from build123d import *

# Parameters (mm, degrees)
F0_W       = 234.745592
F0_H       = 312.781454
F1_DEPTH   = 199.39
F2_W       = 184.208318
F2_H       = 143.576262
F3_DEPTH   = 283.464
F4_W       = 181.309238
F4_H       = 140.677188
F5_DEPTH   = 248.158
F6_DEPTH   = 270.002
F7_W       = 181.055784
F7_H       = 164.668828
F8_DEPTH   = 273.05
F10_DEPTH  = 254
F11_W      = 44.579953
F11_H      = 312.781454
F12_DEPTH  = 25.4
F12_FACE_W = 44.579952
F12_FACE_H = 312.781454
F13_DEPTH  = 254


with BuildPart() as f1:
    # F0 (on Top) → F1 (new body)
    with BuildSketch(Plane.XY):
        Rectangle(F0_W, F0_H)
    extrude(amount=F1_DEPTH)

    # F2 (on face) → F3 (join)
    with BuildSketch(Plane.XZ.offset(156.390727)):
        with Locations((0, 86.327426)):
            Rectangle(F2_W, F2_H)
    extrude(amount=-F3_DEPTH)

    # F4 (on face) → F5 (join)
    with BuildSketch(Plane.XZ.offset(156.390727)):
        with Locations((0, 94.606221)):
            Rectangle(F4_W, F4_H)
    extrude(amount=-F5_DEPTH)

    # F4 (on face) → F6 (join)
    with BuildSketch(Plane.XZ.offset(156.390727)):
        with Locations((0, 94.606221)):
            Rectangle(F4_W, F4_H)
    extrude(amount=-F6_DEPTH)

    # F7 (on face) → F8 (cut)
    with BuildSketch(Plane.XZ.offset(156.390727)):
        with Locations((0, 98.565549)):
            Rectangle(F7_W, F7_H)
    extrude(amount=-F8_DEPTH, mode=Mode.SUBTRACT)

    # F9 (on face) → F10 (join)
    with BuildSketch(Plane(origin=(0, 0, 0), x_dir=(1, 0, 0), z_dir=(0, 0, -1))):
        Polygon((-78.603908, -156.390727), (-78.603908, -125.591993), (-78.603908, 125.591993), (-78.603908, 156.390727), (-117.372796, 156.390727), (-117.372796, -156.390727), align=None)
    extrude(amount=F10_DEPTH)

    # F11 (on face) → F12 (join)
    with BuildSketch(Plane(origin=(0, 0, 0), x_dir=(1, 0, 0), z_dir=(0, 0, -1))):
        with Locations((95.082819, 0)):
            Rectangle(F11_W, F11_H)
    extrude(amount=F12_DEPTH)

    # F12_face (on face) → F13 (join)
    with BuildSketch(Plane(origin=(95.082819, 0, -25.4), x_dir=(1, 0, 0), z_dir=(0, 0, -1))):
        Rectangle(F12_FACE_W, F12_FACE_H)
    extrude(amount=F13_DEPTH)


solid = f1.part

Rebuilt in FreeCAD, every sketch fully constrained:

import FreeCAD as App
import Part
import Sketcher

V = App.Vector
Q = App.Units.Quantity


def add_polygon(sketch, points):
    """Adds a closed chain of lines whose ends are joined by coincident constraints."""
    first, n = sketch.GeometryCount, len(points)
    for a, b in zip(points, points[1:] + points[:1]):
        sketch.addGeometry(Part.LineSegment(App.Vector(*a, 0), App.Vector(*b, 0)), False)
    for i in range(n):
        sketch.addConstraint(Sketcher.Constraint("Coincident", first + i, 2, first + (i + 1) % n, 1))

doc = App.newDocument("Part")
body = doc.addObject("PartDesign::Body", "Body")

# Sketch on XY plane
sketch1 = body.newObject("Sketcher::SketchObject", "Sketch")
sketch1.AttachmentSupport = (doc.getObject("XY_Plane"), [""])
sketch1.MapMode = "FlatFace"
add_polygon(sketch1, [(-117.372796, 156.390727), (-117.372796, -156.390727), (117.372796, -156.390727), (117.372796, 156.390727)])  # lines 0-3
sketch1.addConstraint([
    Sketcher.Constraint("Vertical", 0),
    Sketcher.Constraint("Horizontal", 1),
    Sketcher.Constraint("Vertical", 2),
    Sketcher.Constraint("Horizontal", 3),
    Sketcher.Constraint("Symmetric", 0, 2, 2, 2, -1, 1),
    Sketcher.Constraint("DistanceX", 1, 1, 1, 2, 234.745592),
    Sketcher.Constraint("DistanceY", 0, 2, 0, 1, 312.781454),
])
pad1 = body.newObject("PartDesign::Pad", "Pad")
pad1.Profile = sketch1
pad1.Length = Q("7.85 in")

# Sketch on XZ plane
sketch2 = body.newObject("Sketcher::SketchObject", "Sketch001")
sketch2.AttachmentSupport = (doc.getObject("XZ_Plane"), [""])
sketch2.MapMode = "FlatFace"
sketch2.AttachmentOffset = App.Placement(V(0, 0, 156.390727), App.Rotation())
add_polygon(sketch2, [(-92.104159, 158.115557), (-92.104159, 14.539295), (92.104159, 14.539295), (92.104159, 158.115557)])  # lines 0-3
sketch2.addConstraint([
    Sketcher.Constraint("Vertical", 0),
    Sketcher.Constraint("Horizontal", 1),
    Sketcher.Constraint("Vertical", 2),
    Sketcher.Constraint("Horizontal", 3),
    Sketcher.Constraint("DistanceX", 1, 1, 1, 2, 184.208318),
    Sketcher.Constraint("DistanceY", 0, 2, 0, 1, 143.576262),
    Sketcher.Constraint("DistanceX", 0, 2, -1, 1, 92.104159),
    Sketcher.Constraint("DistanceY", -1, 1, 0, 2, 14.539295),
])
pad2 = body.newObject("PartDesign::Pad", "Pad001")
pad2.Profile = sketch2
pad2.Length = Q("11.16 in")
pad2.Reversed = True

# Sketch on XZ plane
sketch3 = body.newObject("Sketcher::SketchObject", "Sketch002")
sketch3.AttachmentSupport = (doc.getObject("XZ_Plane"), [""])
sketch3.MapMode = "FlatFace"
sketch3.AttachmentOffset = App.Placement(V(0, 0, 156.390727), App.Rotation())
add_polygon(sketch3, [(-90.654619, 164.944815), (-90.654619, 24.267627), (90.654619, 24.267627), (90.654619, 164.944815)])  # lines 0-3
sketch3.addConstraint([
    Sketcher.Constraint("Vertical", 0),
    Sketcher.Constraint("Horizontal", 1),
    Sketcher.Constraint("Vertical", 2),
    Sketcher.Constraint("Horizontal", 3),
    Sketcher.Constraint("DistanceX", 1, 1, 1, 2, 181.309238),
    Sketcher.Constraint("DistanceY", 0, 2, 0, 1, 140.677188),
    Sketcher.Constraint("DistanceX", 0, 2, -1, 1, 90.654619),
    Sketcher.Constraint("DistanceY", -1, 1, 0, 2, 24.267627),
])
pad3 = body.newObject("PartDesign::Pad", "Pad002")
pad3.Profile = sketch3
pad3.Length = Q("9.77 in")
pad3.Reversed = True

# Sketch on XZ plane
sketch4 = body.newObject("Sketcher::SketchObject", "Sketch003")
sketch4.AttachmentSupport = (doc.getObject("XZ_Plane"), [""])
sketch4.MapMode = "FlatFace"
sketch4.AttachmentOffset = App.Placement(V(0, 0, 156.390727), App.Rotation())
add_polygon(sketch4, [(-90.654619, 164.944815), (-90.654619, 24.267627), (90.654619, 24.267627), (90.654619, 164.944815)])  # lines 0-3
sketch4.addConstraint([
    Sketcher.Constraint("Vertical", 0),
    Sketcher.Constraint("Horizontal", 1),
    Sketcher.Constraint("Vertical", 2),
    Sketcher.Constraint("Horizontal", 3),
    Sketcher.Constraint("DistanceX", 1, 1, 1, 2, 181.309238),
    Sketcher.Constraint("DistanceY", 0, 2, 0, 1, 140.677188),
    Sketcher.Constraint("DistanceX", 0, 2, -1, 1, 90.654619),
    Sketcher.Constraint("DistanceY", -1, 1, 0, 2, 24.267627),
])
pad4 = body.newObject("PartDesign::Pad", "Pad003")
pad4.Profile = sketch4
pad4.Length = Q("10.63 in")
pad4.Reversed = True

# Sketch on XZ plane
sketch5 = body.newObject("Sketcher::SketchObject", "Sketch004")
sketch5.AttachmentSupport = (doc.getObject("XZ_Plane"), [""])
sketch5.MapMode = "FlatFace"
sketch5.AttachmentOffset = App.Placement(V(0, 0, 156.390727), App.Rotation())
add_polygon(sketch5, [(-90.527892, 180.899963), (-90.527892, 16.231135), (90.527892, 16.231135), (90.527892, 180.899963)])  # lines 0-3
sketch5.addConstraint([
    Sketcher.Constraint("Vertical", 0),
    Sketcher.Constraint("Horizontal", 1),
    Sketcher.Constraint("Vertical", 2),
    Sketcher.Constraint("Horizontal", 3),
    Sketcher.Constraint("DistanceY", 0, 2, 0, 1, 164.668828),
    Sketcher.Constraint("DistanceX", 1, 1, 1, 2, 181.055784),
    Sketcher.Constraint("DistanceX", 0, 2, -1, 1, 90.527892),
    Sketcher.Constraint("DistanceY", -1, 1, 0, 2, 16.231135),
])
pocket1 = body.newObject("PartDesign::Pocket", "Pocket")
pocket1.Profile = sketch5
pocket1.Length = Q("10.75 in")

# Sketch on XY plane
sketch6 = body.newObject("Sketcher::SketchObject", "Sketch005")
sketch6.AttachmentSupport = (doc.getObject("XY_Plane"), [""])
sketch6.MapMode = "FlatFace"
add_polygon(sketch6, [(-78.603908, 156.390727), (-78.603908, -156.390727), (-117.372796, -156.390727), (-117.372796, 156.390727)])  # lines 0-3
sketch6.addConstraint([
    Sketcher.Constraint("Vertical", 0),
    Sketcher.Constraint("Horizontal", 1),
    Sketcher.Constraint("Vertical", 2),
    Sketcher.Constraint("Horizontal", 3),
    Sketcher.Constraint("DistanceX", 1, 2, 1, 1, 38.768888),
    Sketcher.Constraint("DistanceY", 0, 2, 0, 1, 312.781454),
    Sketcher.Constraint("DistanceX", 0, 2, -1, 1, 78.603908),
    Sketcher.Constraint("DistanceY", 0, 2, -1, 1, 156.390727),
])
pad5 = body.newObject("PartDesign::Pad", "Pad004")
pad5.Profile = sketch6
pad5.Length = Q("10 in")
pad5.Reversed = True

# Sketch on XY plane
sketch7 = body.newObject("Sketcher::SketchObject", "Sketch006")
sketch7.AttachmentSupport = (doc.getObject("XY_Plane"), [""])
sketch7.MapMode = "FlatFace"
add_polygon(sketch7, [(72.792843, -156.390727), (72.792843, 156.390727), (117.372795, 156.390727), (117.372795, -156.390727)])  # lines 0-3
sketch7.addConstraint([
    Sketcher.Constraint("Vertical", 0),
    Sketcher.Constraint("Horizontal", 1),
    Sketcher.Constraint("Vertical", 2),
    Sketcher.Constraint("Horizontal", 3),
    Sketcher.Constraint("DistanceX", 1, 1, 1, 2, 44.579953),
    Sketcher.Constraint("DistanceY", 0, 1, 0, 2, 312.781454),
    Sketcher.Constraint("DistanceX", -1, 1, 0, 2, 72.792843),
    Sketcher.Constraint("DistanceY", -1, 1, 0, 2, 156.390727),
])
pad6 = body.newObject("PartDesign::Pad", "Pad005")
pad6.Profile = sketch7
pad6.Length = Q("1 in")
pad6.Reversed = True

# Sketch on XY plane
sketch8 = body.newObject("Sketcher::SketchObject", "Sketch007")
sketch8.AttachmentSupport = (doc.getObject("XY_Plane"), [""])
sketch8.MapMode = "FlatFace"
sketch8.AttachmentOffset = App.Placement(V(0, 0, -1 * 25.4), App.Rotation())
add_polygon(sketch8, [(72.792843, -156.390727), (72.792843, 156.390727), (117.372795, 156.390727), (117.372795, -156.390727)])  # lines 0-3
sketch8.addConstraint([
    Sketcher.Constraint("Vertical", 0),
    Sketcher.Constraint("Horizontal", 1),
    Sketcher.Constraint("Vertical", 2),
    Sketcher.Constraint("Horizontal", 3),
    Sketcher.Constraint("DistanceX", 1, 1, 1, 2, 44.579952),
    Sketcher.Constraint("DistanceY", 0, 1, 0, 2, 312.781454),
    Sketcher.Constraint("DistanceX", -1, 1, 0, 2, 72.792843),
    Sketcher.Constraint("DistanceY", -1, 1, 0, 2, 156.390727),
])
pad7 = body.newObject("PartDesign::Pad", "Pad006")
pad7.Profile = sketch8
pad7.Length = Q("10 in")
pad7.Reversed = True

doc.recompute()
